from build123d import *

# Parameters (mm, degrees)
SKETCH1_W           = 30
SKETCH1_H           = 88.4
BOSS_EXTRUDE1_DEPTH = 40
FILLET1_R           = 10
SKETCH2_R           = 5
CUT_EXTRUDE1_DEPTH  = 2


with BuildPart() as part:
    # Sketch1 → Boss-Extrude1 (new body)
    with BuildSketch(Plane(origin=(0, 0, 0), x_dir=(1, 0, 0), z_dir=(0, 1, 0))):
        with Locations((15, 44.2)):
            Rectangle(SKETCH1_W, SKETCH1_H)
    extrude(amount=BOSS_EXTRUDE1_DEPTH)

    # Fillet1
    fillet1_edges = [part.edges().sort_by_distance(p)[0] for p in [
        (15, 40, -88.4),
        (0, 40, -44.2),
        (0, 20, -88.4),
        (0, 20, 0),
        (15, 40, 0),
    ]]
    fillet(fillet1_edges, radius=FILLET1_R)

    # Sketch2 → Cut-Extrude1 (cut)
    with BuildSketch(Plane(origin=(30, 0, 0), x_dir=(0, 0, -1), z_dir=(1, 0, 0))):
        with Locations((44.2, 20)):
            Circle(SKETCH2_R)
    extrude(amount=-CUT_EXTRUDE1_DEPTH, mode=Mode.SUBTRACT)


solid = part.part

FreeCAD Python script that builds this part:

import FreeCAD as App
import Part
import Sketcher

V = App.Vector
Q = App.Units.Quantity


def edges_at(feature, points):
    """Names of the edges that pass closest to the given points."""
    edges = feature.Shape.Edges
    near = lambda p: min(range(len(edges)), key=lambda i: edges[i].distToShape(Part.Vertex(*p))[0])
    return sorted({f"Edge{near(p) + 1}" for p in points})

doc = App.newDocument("Part")
params = doc.addObject("Spreadsheet::Sheet", "Params")
for row, (alias, value) in enumerate([
    ("sketch1_width", "30 mm"),
    ("sketch1_height", "88.4 mm"),
    ("pad1_length", "40 mm"),
    ("fillet_radius", "10 mm"),
    ("sketch2_diameter", "10 mm"),
    ("pocket1_length", "2 mm"),
], start=1):
    params.set(f"A{row}", alias)
    params.set(f"B{row}", "=" + value)
    params.setAlias(f"B{row}", alias)

body = doc.addObject("PartDesign::Body", "Body")

# Sketch on XZ plane
sketch1 = doc.addObject("Sketcher::SketchObject", "Sketch")
body.addObject(sketch1)
sketch1.AttachmentSupport = (doc.XZ_Plane, [""])
sketch1.MapMode = "FlatFace"
sketch1.addGeometry([
    Part.LineSegment(V(0, -88.4, 0), V(0, 0, 0)),
    Part.LineSegment(V(0, 0, 0), V(30, 0, 0)),
    Part.LineSegment(V(30, 0, 0), V(30, -88.4, 0)),
    Part.LineSegment(V(30, -88.4, 0), V(0, -88.4, 0)),
], False)
sketch1.addConstraint([
    Sketcher.Constraint("Coincident", 0, 2, 1, 1),
    Sketcher.Constraint("Coincident", 1, 2, 2, 1),
    Sketcher.Constraint("Coincident", 2, 2, 3, 1),
    Sketcher.Constraint("Coincident", 3, 2, 0, 1),
    Sketcher.Constraint("Vertical", 0),
    Sketcher.Constraint("Horizontal", 1),
    Sketcher.Constraint("Vertical", 2),
    Sketcher.Constraint("Horizontal", 3),
    Sketcher.Constraint("Coincident", 0, 2, -1, 1),
    Sketcher.Constraint("DistanceX", 1, 1, 1, 2, Q("30 mm")),
    Sketcher.Constraint("DistanceY", 0, 1, 0, 2, Q("88.4 mm")),
])
sketch1.setExpression("Constraints[9]", "Params.sketch1_width")
sketch1.setExpression("Constraints[10]", "Params.sketch1_height")
pad1 = doc.addObject("PartDesign::Pad", "Pad")
body.addObject(pad1)
pad1.Profile = sketch1
pad1.setExpression("Length", "Params.pad1_length")
pad1.Reversed = True
doc.recompute()

fillet = doc.addObject("PartDesign::Fillet", "Fillet")
body.addObject(fillet)
fillet.Base = (pad1, edges_at(pad1, [
    (15, 40, -88.4),
    (0, 40, -44.2),
    (0, 20, -88.4),
    (0, 20, 0),
    (15, 40, 0),
]))
fillet.setExpression("Radius", "Params.fillet_radius")

# Sketch on YZ plane
sketch2 = doc.addObject("Sketcher::SketchObject", "Sketch001")
body.addObject(sketch2)
sketch2.AttachmentSupport = (doc.YZ_Plane, [""])
sketch2.MapMode = "FlatFace"
sketch2.AttachmentOffset = App.Placement(V(0, 0, 30), App.Rotation())
sketch2.addGeometry(Part.Circle(V(20, -44.2, 0), V(0, 0, 1), 5), False)
sketch2.addConstraint([
    Sketcher.Constraint("Diameter", 0, Q("10 mm")),
    Sketcher.Constraint("DistanceX", -1, 1, 0, 3, Q("20 mm")),
    Sketcher.Constraint("DistanceY", 0, 3, -1, 1, Q("44.2 mm")),
])
sketch2.setExpression("Constraints[0]", "Params.sketch2_diameter")
pocket1 = doc.addObject("PartDesign::Pocket", "Pocket")
body.addObject(pocket1)
pocket1.Profile = sketch2
pocket1.setExpression("Length", "Params.pocket1_length")

doc.recompute()
